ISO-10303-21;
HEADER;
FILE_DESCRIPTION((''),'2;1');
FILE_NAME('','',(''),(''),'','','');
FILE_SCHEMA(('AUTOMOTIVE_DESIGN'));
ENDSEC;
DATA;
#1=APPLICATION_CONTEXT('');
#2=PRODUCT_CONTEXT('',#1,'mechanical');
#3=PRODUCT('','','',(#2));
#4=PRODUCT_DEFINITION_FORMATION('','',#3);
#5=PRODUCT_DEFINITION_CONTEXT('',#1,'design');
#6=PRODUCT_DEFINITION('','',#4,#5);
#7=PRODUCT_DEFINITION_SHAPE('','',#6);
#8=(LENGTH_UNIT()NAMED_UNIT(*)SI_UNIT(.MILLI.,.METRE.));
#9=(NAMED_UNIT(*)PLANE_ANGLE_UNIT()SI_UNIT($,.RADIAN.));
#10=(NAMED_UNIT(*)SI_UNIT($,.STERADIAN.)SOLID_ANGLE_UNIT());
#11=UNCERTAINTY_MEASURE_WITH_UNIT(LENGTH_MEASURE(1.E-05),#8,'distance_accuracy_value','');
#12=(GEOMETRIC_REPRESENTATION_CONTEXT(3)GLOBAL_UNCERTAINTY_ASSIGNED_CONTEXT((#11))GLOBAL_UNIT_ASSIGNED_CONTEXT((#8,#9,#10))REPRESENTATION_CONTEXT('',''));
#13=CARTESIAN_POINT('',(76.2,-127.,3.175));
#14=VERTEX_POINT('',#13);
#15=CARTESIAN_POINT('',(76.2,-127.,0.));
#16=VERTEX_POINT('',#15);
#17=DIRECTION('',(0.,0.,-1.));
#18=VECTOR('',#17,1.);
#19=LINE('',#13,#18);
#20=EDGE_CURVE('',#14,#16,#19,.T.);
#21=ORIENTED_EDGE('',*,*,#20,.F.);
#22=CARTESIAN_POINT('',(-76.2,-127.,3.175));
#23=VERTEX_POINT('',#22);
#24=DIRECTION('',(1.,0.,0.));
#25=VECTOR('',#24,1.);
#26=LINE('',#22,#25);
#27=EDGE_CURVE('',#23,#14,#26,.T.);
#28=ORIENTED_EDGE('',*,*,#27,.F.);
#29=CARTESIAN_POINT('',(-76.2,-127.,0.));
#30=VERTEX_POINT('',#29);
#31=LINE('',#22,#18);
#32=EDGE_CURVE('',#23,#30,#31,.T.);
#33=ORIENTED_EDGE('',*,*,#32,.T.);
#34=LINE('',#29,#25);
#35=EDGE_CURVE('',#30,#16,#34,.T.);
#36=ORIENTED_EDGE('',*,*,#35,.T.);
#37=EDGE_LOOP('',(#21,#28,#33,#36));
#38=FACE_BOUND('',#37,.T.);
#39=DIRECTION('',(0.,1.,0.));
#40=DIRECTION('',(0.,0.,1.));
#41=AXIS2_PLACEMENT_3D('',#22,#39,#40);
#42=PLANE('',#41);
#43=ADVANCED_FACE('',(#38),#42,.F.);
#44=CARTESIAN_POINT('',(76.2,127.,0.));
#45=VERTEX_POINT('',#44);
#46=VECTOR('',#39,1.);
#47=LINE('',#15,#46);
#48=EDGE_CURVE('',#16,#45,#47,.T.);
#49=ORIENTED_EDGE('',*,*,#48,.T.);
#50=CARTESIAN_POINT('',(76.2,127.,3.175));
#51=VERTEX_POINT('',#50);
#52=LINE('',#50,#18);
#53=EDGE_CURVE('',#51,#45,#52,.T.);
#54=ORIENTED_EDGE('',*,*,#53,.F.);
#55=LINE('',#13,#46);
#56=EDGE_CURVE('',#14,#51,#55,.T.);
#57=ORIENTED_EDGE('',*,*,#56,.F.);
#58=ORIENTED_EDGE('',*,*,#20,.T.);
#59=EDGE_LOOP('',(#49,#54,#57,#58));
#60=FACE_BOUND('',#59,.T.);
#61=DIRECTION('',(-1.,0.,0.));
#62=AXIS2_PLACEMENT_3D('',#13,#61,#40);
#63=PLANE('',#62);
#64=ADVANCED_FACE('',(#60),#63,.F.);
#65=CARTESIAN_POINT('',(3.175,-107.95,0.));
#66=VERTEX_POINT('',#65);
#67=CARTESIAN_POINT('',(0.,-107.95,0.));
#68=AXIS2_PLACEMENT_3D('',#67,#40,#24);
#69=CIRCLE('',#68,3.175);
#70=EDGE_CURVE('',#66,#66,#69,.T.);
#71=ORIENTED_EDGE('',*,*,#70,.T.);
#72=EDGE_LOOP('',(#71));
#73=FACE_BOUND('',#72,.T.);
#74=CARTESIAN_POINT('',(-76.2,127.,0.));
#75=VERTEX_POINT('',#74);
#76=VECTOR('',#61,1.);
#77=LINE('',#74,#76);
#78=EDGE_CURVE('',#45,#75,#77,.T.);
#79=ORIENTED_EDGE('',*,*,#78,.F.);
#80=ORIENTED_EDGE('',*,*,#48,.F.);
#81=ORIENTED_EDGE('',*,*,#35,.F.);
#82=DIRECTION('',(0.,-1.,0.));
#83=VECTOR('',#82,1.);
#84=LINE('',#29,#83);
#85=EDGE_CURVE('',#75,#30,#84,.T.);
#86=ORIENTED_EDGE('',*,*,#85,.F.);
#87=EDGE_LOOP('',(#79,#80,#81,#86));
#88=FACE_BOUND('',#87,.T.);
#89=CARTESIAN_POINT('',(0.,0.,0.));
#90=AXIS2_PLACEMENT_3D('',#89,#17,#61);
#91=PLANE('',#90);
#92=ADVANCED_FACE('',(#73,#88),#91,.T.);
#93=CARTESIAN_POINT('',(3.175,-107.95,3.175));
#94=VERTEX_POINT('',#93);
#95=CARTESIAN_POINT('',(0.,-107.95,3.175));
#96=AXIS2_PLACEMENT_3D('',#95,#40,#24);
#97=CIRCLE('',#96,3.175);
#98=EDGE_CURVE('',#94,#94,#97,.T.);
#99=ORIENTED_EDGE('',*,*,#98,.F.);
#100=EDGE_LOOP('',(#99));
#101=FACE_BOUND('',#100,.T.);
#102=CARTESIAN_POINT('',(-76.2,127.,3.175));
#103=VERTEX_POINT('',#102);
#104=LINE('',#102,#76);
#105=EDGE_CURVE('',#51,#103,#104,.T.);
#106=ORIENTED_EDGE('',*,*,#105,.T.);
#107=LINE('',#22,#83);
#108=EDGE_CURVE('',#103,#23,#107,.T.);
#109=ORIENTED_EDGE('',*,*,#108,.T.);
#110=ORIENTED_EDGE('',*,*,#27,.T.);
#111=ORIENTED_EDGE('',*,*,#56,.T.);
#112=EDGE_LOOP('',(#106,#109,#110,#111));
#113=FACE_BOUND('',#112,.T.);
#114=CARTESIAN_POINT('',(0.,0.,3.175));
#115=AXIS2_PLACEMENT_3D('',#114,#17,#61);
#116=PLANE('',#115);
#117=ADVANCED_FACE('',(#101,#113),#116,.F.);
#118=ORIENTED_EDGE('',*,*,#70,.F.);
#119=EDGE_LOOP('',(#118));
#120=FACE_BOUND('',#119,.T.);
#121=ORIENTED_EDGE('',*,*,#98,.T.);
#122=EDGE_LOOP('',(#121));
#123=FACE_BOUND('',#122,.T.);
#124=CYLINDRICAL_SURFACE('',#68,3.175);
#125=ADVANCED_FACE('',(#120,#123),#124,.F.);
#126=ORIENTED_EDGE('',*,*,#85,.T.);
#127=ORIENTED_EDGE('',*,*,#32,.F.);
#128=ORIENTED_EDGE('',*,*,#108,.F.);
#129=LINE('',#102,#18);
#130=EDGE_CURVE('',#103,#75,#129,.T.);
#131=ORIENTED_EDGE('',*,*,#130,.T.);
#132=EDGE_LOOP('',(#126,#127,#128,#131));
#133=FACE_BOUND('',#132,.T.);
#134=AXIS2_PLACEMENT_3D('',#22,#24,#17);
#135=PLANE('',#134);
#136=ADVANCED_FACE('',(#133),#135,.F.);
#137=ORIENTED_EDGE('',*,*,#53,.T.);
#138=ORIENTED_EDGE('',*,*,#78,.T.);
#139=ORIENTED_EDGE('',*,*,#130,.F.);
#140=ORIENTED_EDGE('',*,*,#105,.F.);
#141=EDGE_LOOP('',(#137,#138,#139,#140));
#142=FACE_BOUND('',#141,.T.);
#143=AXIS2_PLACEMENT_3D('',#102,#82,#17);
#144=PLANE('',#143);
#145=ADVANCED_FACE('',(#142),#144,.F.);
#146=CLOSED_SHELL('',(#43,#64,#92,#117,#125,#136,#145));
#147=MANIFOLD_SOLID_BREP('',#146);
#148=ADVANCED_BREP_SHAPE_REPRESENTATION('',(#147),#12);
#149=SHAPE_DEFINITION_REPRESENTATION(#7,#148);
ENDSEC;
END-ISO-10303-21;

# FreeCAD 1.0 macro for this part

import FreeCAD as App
import Part
import Sketcher
from FreeCAD import Vector
Q = App.Units.Quantity


def add_polygon(sketch, points):
    """Adds a closed chain of lines whose ends are joined by coincident constraints."""
    first, n = sketch.GeometryCount, len(points)
    for a, b in zip(points, points[1:] + points[:1]):
        sketch.addGeometry(Part.LineSegment(App.Vector(*a, 0), App.Vector(*b, 0)), False)
    for i in range(n):
        sketch.addConstraint(Sketcher.Constraint("Coincident", first + i, 2, first + (i + 1) % n, 1))

doc = App.newDocument("Part")
body = doc.addObject("PartDesign::Body", "Body")

# Sketch on XY plane
sketch1 = body.newObject("Sketcher::SketchObject", "Sketch")
sketch1.AttachmentSupport = (doc.getObject("XY_Plane"), [""])
sketch1.MapMode = "FlatFace"
add_polygon(sketch1, [(-76, 127), (-76, -127), (76, -127), (76, 127)])  # lines 0-3
sketch1.addConstraint([
    Sketcher.Constraint("Vertical", 0),
    Sketcher.Constraint("Horizontal", 1),
    Sketcher.Constraint("Vertical", 2),
    Sketcher.Constraint("Horizontal", 3),
    Sketcher.Constraint("Symmetric", 0, 2, 2, 2, -1, 1),
    Sketcher.Constraint("DistanceX", 1, 1, 1, 2, Q("6 in")),
    Sketcher.Constraint("DistanceY", 0, 2, 0, 1, Q("10 in")),
])
pad1 = body.newObject("PartDesign::Pad", "Pad")
pad1.Profile = sketch1
pad1.Length = Q("0.125 in")

# Sketch on XY plane
sketch2 = body.newObject("Sketcher::SketchObject", "Sketch001")
sketch2.AttachmentSupport = (doc.getObject("XY_Plane"), [""])
sketch2.MapMode = "FlatFace"
sketch2.AttachmentOffset = App.Placement(Vector(0, 0, 0.125 * 25.4), App.Rotation())
sketch2.addGeometry(Part.Circle(Vector(0, -108, 0), Vector(0, 0, 1), 3.2), False)
sketch2.addConstraint([
    Sketcher.Constraint("PointOnObject", 0, 3, -2),
    Sketcher.Constraint("Diameter", 0, Q("0.25 in")),
    Sketcher.Constraint("DistanceY", 0, 3, -1, 1, Q("4.25 in")),
])
pocket1 = body.newObject("PartDesign::Pocket", "Pocket")
pocket1.Profile = sketch2
pocket1.Type = "ThroughAll"

doc.recompute()
